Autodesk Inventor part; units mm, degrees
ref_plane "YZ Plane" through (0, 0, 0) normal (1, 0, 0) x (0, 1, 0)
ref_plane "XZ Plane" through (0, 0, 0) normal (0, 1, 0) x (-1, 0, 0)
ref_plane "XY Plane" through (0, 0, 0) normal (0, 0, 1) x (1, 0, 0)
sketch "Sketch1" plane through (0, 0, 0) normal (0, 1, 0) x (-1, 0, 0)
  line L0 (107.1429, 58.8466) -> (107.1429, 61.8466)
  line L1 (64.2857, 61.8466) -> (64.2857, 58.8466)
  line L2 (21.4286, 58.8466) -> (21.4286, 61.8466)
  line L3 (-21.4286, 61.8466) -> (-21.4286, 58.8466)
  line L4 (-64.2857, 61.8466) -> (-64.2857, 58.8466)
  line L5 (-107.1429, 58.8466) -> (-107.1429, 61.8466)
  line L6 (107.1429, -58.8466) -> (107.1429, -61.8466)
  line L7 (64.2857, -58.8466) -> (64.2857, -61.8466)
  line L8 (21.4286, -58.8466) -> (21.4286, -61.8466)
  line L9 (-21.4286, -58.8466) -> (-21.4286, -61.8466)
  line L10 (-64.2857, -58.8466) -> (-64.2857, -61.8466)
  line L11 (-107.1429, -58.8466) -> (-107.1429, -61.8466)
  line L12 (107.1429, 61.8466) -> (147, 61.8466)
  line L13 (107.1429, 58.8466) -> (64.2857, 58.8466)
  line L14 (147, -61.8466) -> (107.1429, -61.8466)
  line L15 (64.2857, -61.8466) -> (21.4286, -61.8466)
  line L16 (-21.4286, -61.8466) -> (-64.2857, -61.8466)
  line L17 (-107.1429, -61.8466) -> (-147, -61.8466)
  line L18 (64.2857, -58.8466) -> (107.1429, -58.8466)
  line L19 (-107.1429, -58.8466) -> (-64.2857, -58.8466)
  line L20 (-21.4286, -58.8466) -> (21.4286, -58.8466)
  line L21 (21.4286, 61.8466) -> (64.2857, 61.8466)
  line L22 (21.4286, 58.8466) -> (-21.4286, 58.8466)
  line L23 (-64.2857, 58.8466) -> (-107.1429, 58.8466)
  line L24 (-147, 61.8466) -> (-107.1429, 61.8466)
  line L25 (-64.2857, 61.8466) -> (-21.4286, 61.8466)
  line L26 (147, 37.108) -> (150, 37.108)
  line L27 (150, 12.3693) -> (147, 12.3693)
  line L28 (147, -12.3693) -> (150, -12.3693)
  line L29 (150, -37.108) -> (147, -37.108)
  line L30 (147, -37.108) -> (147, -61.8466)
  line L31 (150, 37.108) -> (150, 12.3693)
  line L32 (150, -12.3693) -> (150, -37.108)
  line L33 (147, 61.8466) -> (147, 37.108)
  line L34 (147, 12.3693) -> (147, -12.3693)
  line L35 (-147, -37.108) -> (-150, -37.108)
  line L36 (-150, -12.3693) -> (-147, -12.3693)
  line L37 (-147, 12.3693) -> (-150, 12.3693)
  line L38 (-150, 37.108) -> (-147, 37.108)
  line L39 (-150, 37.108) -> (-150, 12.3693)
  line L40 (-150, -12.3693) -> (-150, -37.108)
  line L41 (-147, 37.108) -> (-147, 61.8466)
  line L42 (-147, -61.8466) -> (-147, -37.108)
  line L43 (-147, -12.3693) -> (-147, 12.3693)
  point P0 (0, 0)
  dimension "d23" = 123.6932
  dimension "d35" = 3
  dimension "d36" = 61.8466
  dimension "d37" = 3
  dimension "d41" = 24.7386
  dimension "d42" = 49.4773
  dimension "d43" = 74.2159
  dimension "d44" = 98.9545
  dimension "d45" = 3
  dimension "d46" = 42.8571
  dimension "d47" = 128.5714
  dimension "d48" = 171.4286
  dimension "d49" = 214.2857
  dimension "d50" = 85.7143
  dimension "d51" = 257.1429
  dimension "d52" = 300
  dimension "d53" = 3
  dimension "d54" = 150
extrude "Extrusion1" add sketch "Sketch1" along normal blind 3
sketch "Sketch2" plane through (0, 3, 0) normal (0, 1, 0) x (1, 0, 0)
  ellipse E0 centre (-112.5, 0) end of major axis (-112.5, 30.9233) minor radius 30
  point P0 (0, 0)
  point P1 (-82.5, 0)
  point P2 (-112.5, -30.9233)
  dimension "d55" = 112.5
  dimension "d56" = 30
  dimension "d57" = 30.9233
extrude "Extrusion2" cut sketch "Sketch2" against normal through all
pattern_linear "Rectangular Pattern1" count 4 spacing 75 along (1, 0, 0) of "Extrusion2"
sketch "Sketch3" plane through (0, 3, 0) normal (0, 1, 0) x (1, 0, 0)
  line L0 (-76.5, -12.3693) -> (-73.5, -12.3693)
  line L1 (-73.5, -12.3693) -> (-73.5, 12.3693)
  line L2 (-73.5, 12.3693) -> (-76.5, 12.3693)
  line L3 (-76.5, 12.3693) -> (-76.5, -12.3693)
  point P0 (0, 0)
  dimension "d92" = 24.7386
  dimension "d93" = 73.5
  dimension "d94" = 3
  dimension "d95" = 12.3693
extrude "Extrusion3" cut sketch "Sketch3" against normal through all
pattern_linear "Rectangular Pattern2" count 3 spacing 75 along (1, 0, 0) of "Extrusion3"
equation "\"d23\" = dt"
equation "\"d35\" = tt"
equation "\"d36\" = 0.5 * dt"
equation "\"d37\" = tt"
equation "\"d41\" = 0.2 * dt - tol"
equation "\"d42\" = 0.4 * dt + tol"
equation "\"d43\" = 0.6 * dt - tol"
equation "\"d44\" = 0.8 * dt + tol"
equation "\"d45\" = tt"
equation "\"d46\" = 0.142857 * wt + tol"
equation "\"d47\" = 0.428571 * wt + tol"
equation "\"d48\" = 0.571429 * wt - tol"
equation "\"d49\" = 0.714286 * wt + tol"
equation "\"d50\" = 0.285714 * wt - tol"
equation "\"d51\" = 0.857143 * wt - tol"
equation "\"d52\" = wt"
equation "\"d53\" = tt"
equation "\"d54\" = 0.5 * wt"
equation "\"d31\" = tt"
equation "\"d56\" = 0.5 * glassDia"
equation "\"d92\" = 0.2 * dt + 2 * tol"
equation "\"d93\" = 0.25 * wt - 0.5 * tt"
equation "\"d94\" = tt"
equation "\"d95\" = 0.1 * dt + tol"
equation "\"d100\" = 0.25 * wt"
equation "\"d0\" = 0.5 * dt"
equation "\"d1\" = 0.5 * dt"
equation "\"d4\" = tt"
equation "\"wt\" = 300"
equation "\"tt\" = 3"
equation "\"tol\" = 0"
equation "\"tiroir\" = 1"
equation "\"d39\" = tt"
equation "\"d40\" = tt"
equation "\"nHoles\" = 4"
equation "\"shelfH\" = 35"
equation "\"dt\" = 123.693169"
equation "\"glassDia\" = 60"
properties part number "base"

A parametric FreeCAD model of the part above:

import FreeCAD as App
import Part
import Sketcher

V = App.Vector


def add_polygon(sketch, points):
    """Adds a closed chain of lines whose ends are joined by coincident constraints."""
    first, n = sketch.GeometryCount, len(points)
    for a, b in zip(points, points[1:] + points[:1]):
        sketch.addGeometry(Part.LineSegment(App.Vector(*a, 0), App.Vector(*b, 0)), False)
    for i in range(n):
        sketch.addConstraint(Sketcher.Constraint("Coincident", first + i, 2, first + (i + 1) % n, 1))

doc = App.newDocument("Part")
body = doc.addObject("PartDesign::Body", "Body")

# Sketch on XZ plane
sketch1 = body.newObject("Sketcher::SketchObject", "Sketch")
sketch1.AttachmentSupport = (doc.getObject("XZ_Plane"), [""])
sketch1.MapMode = "FlatFace"
add_polygon(sketch1, [(-107.1429, 61.8466), (-107.1429, 58.8466), (-64.2857, 58.8466), (-64.2857, 61.8466), (-21.4286, 61.8466), (-21.4286, 58.8466), (21.4286, 58.8466), (21.4286, 61.8466), (64.2857, 61.8466), (64.2857, 58.8466), (107.1429, 58.8466), (107.1429, 61.8466), (147, 61.8466), (147, 37.108), (150, 37.108), (150, 12.3693), (147, 12.3693), (147, -12.3693), (150, -12.3693), (150, -37.108), (147, -37.108), (147, -61.8466), (107.1429, -61.8466), (107.1429, -58.8466), (64.2857, -58.8466), (64.2857, -61.8466), (21.4286, -61.8466), (21.4286, -58.8466), (-21.4286, -58.8466), (-21.4286, -61.8466), (-64.2857, -61.8466), (-64.2857, -58.8466), (-107.1429, -58.8466), (-107.1429, -61.8466), (-147, -61.8466), (-147, -37.108), (-150, -37.108), (-150, -12.3693), (-147, -12.3693), (-147, 12.3693), (-150, 12.3693), (-150, 37.108), (-147, 37.108), (-147, 61.8466)])  # lines 0-43
sketch1.addConstraint([
    Sketcher.Constraint("Vertical", 0),
    Sketcher.Constraint("Horizontal", 1),
    Sketcher.Constraint("Vertical", 2),
    Sketcher.Constraint("Horizontal", 3),
    Sketcher.Constraint("Vertical", 4),
    Sketcher.Constraint("Horizontal", 5),
    Sketcher.Constraint("Vertical", 6),
    Sketcher.Constraint("Horizontal", 7),
    Sketcher.Constraint("Vertical", 8),
    Sketcher.Constraint("Horizontal", 9),
    Sketcher.Constraint("Vertical", 10),
    Sketcher.Constraint("Horizontal", 11),
    Sketcher.Constraint("Vertical", 12),
    Sketcher.Constraint("Horizontal", 13),
    Sketcher.Constraint("Vertical", 14),
    Sketcher.Constraint("Horizontal", 15),
    Sketcher.Constraint("Vertical", 16),
    Sketcher.Constraint("Horizontal", 17),
    Sketcher.Constraint("Vertical", 18),
    Sketcher.Constraint("Horizontal", 19),
    Sketcher.Constraint("Vertical", 20),
    Sketcher.Constraint("Horizontal", 21),
    Sketcher.Constraint("Vertical", 22),
    Sketcher.Constraint("Horizontal", 23),
    Sketcher.Constraint("Vertical", 24),
    Sketcher.Constraint("Horizontal", 25),
    Sketcher.Constraint("Vertical", 26),
    Sketcher.Constraint("Horizontal", 27),
    Sketcher.Constraint("Vertical", 28),
    Sketcher.Constraint("Horizontal", 29),
    Sketcher.Constraint("Vertical", 30),
    Sketcher.Constraint("Horizontal", 31),
    Sketcher.Constraint("Vertical", 32),
    Sketcher.Constraint("Horizontal", 33),
    Sketcher.Constraint("Vertical", 34),
    Sketcher.Constraint("Horizontal", 35),
    Sketcher.Constraint("Vertical", 36),
    Sketcher.Constraint("Horizontal", 37),
    Sketcher.Constraint("Vertical", 38),
    Sketcher.Constraint("Horizontal", 39),
    Sketcher.Constraint("Vertical", 40),
    Sketcher.Constraint("Horizontal", 41),
    Sketcher.Constraint("Vertical", 42),
    Sketcher.Constraint("Horizontal", 43),
    Sketcher.Constraint("Symmetric", 0, 2, 22, 2, -1, 1),
    Sketcher.Constraint("Symmetric", 2, 2, 24, 2, -1, 1),
    Sketcher.Constraint("Symmetric", 4, 2, 26, 2, -1, 1),
    Sketcher.Constraint("Symmetric", 6, 2, 28, 2, -1, 1),
    Sketcher.Constraint("Symmetric", 8, 2, 30, 2, -1, 1),
    Sketcher.Constraint("Symmetric", 10, 2, 32, 2, -1, 1),
    Sketcher.Constraint("Symmetric", 12, 2, 34, 2, -1, 1),
    Sketcher.Constraint("Symmetric", 14, 2, 36, 2, -1, 1),
    Sketcher.Constraint("Symmetric", 16, 2, 38, 2, -1, 1),
    Sketcher.Constraint("Symmetric", 18, 2, 40, 2, -1, 1),
    Sketcher.Constraint("Symmetric", 20, 2, 42, 2, -1, 1),
    Sketcher.Constraint("Symmetric", 3, 2, 6, 2, -2),
    Sketcher.Constraint("Symmetric", 1, 2, 8, 2, -2),
    Sketcher.Constraint("Symmetric", 21, 2, 32, 2, -2),
    Sketcher.Constraint("Symmetric", 19, 2, 34, 2, -2),
    Sketcher.Constraint("Symmetric", 17, 2, 36, 2, -2),
    Sketcher.Constraint("Horizontal", 1, 2, 4, 2),
    Sketcher.Constraint("Horizontal", 7, 2, 10, 2),
    Sketcher.Constraint("Vertical", 12, 2, 15, 2),
    Sketcher.Constraint("Equal", 1, 3),
    Sketcher.Constraint("Equal", 3, 5),
    Sketcher.Constraint("Equal", 41, 0),
    Sketcher.Constraint("Equal", 12, 14),
    Sketcher.Constraint("Equal", 14, 16),
    Sketcher.Constraint("DistanceX", 13, 1, 13, 2, 3.0),
    Sketcher.Constraint("DistanceX", -1, 1, 13, 2, 150.0),
    Sketcher.Constraint("DistanceX", 3, 1, 3, 2, 42.857),
    Sketcher.Constraint("DistanceY", 12, 2, 12, 1, 24.7386),
])
pad1 = body.newObject("PartDesign::Pad", "Pad")
pad1.Profile = sketch1
pad1.Length = 3
pad1.Reversed = True

# Sketch on XZ plane
sketch2 = body.newObject("Sketcher::SketchObject", "Sketch001")
sketch2.AttachmentSupport = (doc.getObject("XZ_Plane"), [""])
sketch2.MapMode = "FlatFace"
sketch2.AttachmentOffset = App.Placement(V(0, 0, -3), App.Rotation())
sketch2.addGeometry(Part.Ellipse(V(-112.5, -30.9233, 0), V(-82.5, 0, 0), V(-112.5, 0, 0)), False)
sketch2.addConstraint(Sketcher.Constraint("Block", 0))
pocket1 = body.newObject("PartDesign::Pocket", "Pocket")
pocket1.Profile = sketch2
pocket1.Type = "ThroughAll"
pocket1.Reversed = True
doc.recompute()

linearpattern = body.newObject("PartDesign::LinearPattern", "LinearPattern")
linearpattern.Originals = [pocket1]
linearpattern.Direction = (doc.getObject("X_Axis"), [""])
linearpattern.Mode = "offset"
linearpattern.Offset = 75
linearpattern.Occurrences = 4
body.Tip = linearpattern

# Sketch on XZ plane
sketch3 = body.newObject("Sketcher::SketchObject", "Sketch002")
sketch3.AttachmentSupport = (doc.getObject("XZ_Plane"), [""])
sketch3.MapMode = "FlatFace"
sketch3.AttachmentOffset = App.Placement(V(0, 0, -3), App.Rotation())
add_polygon(sketch3, [(-76.5, -12.3693), (-76.5, 12.3693), (-73.5, 12.3693), (-73.5, -12.3693)])  # lines 0-3
sketch3.addConstraint([
    Sketcher.Constraint("Vertical", 0),
    Sketcher.Constraint("Horizontal", 1),
    Sketcher.Constraint("Vertical", 2),
    Sketcher.Constraint("Horizontal", 3),
    Sketcher.Constraint("DistanceX", 1, 1, 1, 2, 3.0),
    Sketcher.Constraint("DistanceX", 1, 2, -1, 1, 73.5),
    Sketcher.Constraint("DistanceY", 0, 1, 0, 2, 24.7386),
    Sketcher.Constraint("DistanceY", -1, 1, 0, 2, 12.3693),
])
pocket2 = body.newObject("PartDesign::Pocket", "Pocket001")
pocket2.Profile = sketch3
pocket2.Type = "ThroughAll"
pocket2.Reversed = True
doc.recompute()

linearpattern2 = body.newObject("PartDesign::LinearPattern", "LinearPattern001")
linearpattern2.Originals = [pocket2]
linearpattern2.Direction = (doc.getObject("X_Axis"), [""])
linearpattern2.Mode = "offset"
linearpattern2.Offset = 75
linearpattern2.Occurrences = 3
body.Tip = linearpattern2

doc.recompute()
